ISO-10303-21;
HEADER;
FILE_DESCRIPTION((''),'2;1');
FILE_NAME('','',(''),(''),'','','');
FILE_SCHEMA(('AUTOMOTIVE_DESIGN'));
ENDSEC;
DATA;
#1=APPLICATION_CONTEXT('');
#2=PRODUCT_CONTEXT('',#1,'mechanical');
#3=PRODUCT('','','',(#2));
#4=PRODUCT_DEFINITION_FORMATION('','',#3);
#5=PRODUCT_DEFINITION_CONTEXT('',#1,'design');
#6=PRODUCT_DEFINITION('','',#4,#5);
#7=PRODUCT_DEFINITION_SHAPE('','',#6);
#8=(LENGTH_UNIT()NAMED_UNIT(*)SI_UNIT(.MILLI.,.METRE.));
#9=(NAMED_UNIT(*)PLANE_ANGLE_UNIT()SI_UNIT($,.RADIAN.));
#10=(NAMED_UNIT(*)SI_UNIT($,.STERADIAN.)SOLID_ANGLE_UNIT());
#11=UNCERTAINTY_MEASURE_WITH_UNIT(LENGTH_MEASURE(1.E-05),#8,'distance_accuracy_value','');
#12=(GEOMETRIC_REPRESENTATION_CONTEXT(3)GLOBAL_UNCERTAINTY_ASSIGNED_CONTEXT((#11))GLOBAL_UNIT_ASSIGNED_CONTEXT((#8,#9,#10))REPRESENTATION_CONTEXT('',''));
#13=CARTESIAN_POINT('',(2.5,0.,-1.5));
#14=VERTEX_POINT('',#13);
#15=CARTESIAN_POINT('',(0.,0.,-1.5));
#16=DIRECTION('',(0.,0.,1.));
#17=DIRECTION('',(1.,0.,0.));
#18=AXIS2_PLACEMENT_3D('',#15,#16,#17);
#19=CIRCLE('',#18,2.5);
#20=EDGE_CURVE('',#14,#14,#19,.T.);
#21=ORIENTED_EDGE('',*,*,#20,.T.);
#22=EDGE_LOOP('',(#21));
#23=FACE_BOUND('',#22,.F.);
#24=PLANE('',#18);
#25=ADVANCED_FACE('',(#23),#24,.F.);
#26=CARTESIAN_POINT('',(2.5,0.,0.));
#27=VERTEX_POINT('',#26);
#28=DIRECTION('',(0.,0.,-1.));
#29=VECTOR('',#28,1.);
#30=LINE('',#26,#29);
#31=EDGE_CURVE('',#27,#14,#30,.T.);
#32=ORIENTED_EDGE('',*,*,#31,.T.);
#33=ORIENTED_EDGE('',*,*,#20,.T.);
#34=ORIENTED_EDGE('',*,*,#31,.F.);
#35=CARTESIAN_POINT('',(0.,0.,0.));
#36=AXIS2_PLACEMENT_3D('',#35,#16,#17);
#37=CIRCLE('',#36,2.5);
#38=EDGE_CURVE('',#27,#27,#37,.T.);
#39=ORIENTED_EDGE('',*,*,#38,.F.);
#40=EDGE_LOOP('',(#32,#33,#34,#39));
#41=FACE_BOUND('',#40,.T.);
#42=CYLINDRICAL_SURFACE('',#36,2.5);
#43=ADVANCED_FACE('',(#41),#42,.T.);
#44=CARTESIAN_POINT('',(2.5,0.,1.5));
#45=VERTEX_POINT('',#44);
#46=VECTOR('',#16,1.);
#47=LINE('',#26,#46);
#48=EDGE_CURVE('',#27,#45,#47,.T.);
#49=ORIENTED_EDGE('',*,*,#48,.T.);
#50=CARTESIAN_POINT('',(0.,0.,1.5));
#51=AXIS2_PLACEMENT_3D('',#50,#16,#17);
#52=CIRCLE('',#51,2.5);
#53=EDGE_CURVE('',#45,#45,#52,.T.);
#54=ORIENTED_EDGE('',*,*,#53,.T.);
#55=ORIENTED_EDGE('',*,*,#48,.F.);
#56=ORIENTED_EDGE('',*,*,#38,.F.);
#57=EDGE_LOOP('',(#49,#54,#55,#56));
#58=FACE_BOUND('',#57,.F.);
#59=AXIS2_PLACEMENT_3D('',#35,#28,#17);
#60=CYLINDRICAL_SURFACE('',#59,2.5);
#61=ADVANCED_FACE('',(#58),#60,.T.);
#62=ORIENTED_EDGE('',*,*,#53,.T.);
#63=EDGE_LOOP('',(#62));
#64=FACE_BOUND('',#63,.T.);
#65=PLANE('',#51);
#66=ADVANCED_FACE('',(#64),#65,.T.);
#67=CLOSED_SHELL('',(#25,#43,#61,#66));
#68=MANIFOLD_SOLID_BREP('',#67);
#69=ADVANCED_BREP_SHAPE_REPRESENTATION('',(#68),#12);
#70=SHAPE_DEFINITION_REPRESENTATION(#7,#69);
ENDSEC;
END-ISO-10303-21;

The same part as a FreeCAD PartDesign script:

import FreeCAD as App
import Part
import Sketcher
from FreeCAD import Vector

doc = App.newDocument("Part")
params = doc.addObject("Spreadsheet::Sheet", "Params")
for row, (alias, value) in enumerate([
    ("sketch1_diameter", "5 mm"),
    ("pad1_length", "3 mm"),
], start=1):
    params.set(f"A{row}", alias)
    params.set(f"B{row}", "=" + value)
    params.setAlias(f"B{row}", alias)

body = doc.addObject("PartDesign::Body", "Body")

# Sketch on XY plane
sketch1 = doc.addObject("Sketcher::SketchObject", "Sketch")
body.addObject(sketch1)
sketch1.AttachmentSupport = (doc.XY_Plane, [""])
sketch1.MapMode = "FlatFace"
sketch1.addGeometry(Part.Circle(Vector(0, 0, 0), Vector(0, 0, 1), 2.5), False)
sketch1.addConstraint([
    Sketcher.Constraint("Coincident", 0, 3, -1, 1),
    Sketcher.Constraint("Diameter", 0, 5.0),
])
sketch1.setExpression("Constraints[1]", "Params.sketch1_diameter")
pad1 = doc.addObject("PartDesign::Pad", "Pad")
body.addObject(pad1)
pad1.Profile = sketch1
pad1.setExpression("Length", "Params.pad1_length")
pad1.Midplane = True

doc.recompute()
